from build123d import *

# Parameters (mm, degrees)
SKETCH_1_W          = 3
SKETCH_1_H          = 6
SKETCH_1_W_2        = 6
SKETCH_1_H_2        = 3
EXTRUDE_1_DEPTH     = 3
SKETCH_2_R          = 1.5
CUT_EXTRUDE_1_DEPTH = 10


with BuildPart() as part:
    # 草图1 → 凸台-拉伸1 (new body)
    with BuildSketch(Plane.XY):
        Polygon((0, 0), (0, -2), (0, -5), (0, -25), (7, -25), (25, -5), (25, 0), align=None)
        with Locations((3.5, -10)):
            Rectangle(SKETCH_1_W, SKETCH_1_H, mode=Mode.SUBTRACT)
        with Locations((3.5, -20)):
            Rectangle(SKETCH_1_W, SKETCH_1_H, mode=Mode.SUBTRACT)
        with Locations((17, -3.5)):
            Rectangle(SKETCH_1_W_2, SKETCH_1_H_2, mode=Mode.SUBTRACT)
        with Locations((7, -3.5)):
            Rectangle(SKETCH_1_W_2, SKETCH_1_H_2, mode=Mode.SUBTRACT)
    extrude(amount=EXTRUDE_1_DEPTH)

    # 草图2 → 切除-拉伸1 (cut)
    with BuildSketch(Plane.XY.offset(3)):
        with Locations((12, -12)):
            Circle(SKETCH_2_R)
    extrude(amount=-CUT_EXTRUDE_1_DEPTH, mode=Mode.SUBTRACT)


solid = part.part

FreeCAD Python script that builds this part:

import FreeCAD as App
import Part
import Sketcher

V = App.Vector

doc = App.newDocument("Part")
body = doc.addObject("PartDesign::Body", "Body")

# Sketch on XY plane
sketch1 = body.newObject("Sketcher::SketchObject", "Sketch")
sketch1.AttachmentSupport = (doc.getObject("XY_Plane"), [""])
sketch1.MapMode = "FlatFace"
sketch1.addGeometry(Part.LineSegment(V(0, 0, 0), V(0, -25, 0)), False)
sketch1.addGeometry(Part.LineSegment(V(0, -25, 0), V(7, -25, 0)), False)
sketch1.addGeometry(Part.LineSegment(V(7, -25, 0), V(25, -5, 0)), False)
sketch1.addGeometry(Part.LineSegment(V(25, -5, 0), V(25, 0, 0)), False)
sketch1.addGeometry(Part.LineSegment(V(25, 0, 0), V(0, 0, 0)), False)
sketch1.addGeometry(Part.LineSegment(V(5, -23, 0), V(2, -23, 0)), False)
sketch1.addGeometry(Part.LineSegment(V(2, -23, 0), V(2, -17, 0)), False)
sketch1.addGeometry(Part.LineSegment(V(2, -17, 0), V(5, -17, 0)), False)
sketch1.addGeometry(Part.LineSegment(V(5, -17, 0), V(5, -23, 0)), False)
sketch1.addGeometry(Part.LineSegment(V(5, -13, 0), V(2, -13, 0)), False)
sketch1.addGeometry(Part.LineSegment(V(2, -13, 0), V(2, -7, 0)), False)
sketch1.addGeometry(Part.LineSegment(V(2, -7, 0), V(5, -7, 0)), False)
sketch1.addGeometry(Part.LineSegment(V(5, -7, 0), V(5, -13, 0)), False)
sketch1.addGeometry(Part.LineSegment(V(10, -5, 0), V(4, -5, 0)), False)
sketch1.addGeometry(Part.LineSegment(V(4, -5, 0), V(4, -2, 0)), False)
sketch1.addGeometry(Part.LineSegment(V(4, -2, 0), V(10, -2, 0)), False)
sketch1.addGeometry(Part.LineSegment(V(10, -2, 0), V(10, -5, 0)), False)
sketch1.addGeometry(Part.LineSegment(V(20, -5, 0), V(14, -5, 0)), False)
sketch1.addGeometry(Part.LineSegment(V(14, -5, 0), V(14, -2, 0)), False)
sketch1.addGeometry(Part.LineSegment(V(14, -2, 0), V(20, -2, 0)), False)
sketch1.addGeometry(Part.LineSegment(V(20, -2, 0), V(20, -5, 0)), False)
sketch1.addConstraint(Sketcher.Constraint("Coincident", 0, 2, 1, 1))
sketch1.addConstraint(Sketcher.Constraint("Coincident", 1, 2, 2, 1))
sketch1.addConstraint(Sketcher.Constraint("Coincident", 2, 2, 3, 1))
sketch1.addConstraint(Sketcher.Constraint("Coincident", 3, 2, 4, 1))
sketch1.addConstraint(Sketcher.Constraint("Coincident", 4, 2, 0, 1))
sketch1.addConstraint(Sketcher.Constraint("Coincident", 5, 2, 6, 1))
sketch1.addConstraint(Sketcher.Constraint("Coincident", 6, 2, 7, 1))
sketch1.addConstraint(Sketcher.Constraint("Coincident", 7, 2, 8, 1))
sketch1.addConstraint(Sketcher.Constraint("Coincident", 8, 2, 5, 1))
sketch1.addConstraint(Sketcher.Constraint("Coincident", 9, 2, 10, 1))
sketch1.addConstraint(Sketcher.Constraint("Coincident", 10, 2, 11, 1))
sketch1.addConstraint(Sketcher.Constraint("Coincident", 11, 2, 12, 1))
sketch1.addConstraint(Sketcher.Constraint("Coincident", 12, 2, 9, 1))
sketch1.addConstraint(Sketcher.Constraint("Coincident", 13, 2, 14, 1))
sketch1.addConstraint(Sketcher.Constraint("Coincident", 14, 2, 15, 1))
sketch1.addConstraint(Sketcher.Constraint("Coincident", 15, 2, 16, 1))
sketch1.addConstraint(Sketcher.Constraint("Coincident", 16, 2, 13, 1))
sketch1.addConstraint(Sketcher.Constraint("Coincident", 17, 2, 18, 1))
sketch1.addConstraint(Sketcher.Constraint("Coincident", 18, 2, 19, 1))
sketch1.addConstraint(Sketcher.Constraint("Coincident", 19, 2, 20, 1))
sketch1.addConstraint(Sketcher.Constraint("Coincident", 20, 2, 17, 1))
sketch1.addConstraint(Sketcher.Constraint("Vertical", 0))
sketch1.addConstraint(Sketcher.Constraint("Horizontal", 1))
sketch1.addConstraint(Sketcher.Constraint("Vertical", 3))
sketch1.addConstraint(Sketcher.Constraint("Horizontal", 4))
sketch1.addConstraint(Sketcher.Constraint("Horizontal", 5))
sketch1.addConstraint(Sketcher.Constraint("Vertical", 6))
sketch1.addConstraint(Sketcher.Constraint("Horizontal", 7))
sketch1.addConstraint(Sketcher.Constraint("Vertical", 8))
sketch1.addConstraint(Sketcher.Constraint("Horizontal", 9))
sketch1.addConstraint(Sketcher.Constraint("Vertical", 10))
sketch1.addConstraint(Sketcher.Constraint("Horizontal", 11))
sketch1.addConstraint(Sketcher.Constraint("Vertical", 12))
sketch1.addConstraint(Sketcher.Constraint("Horizontal", 13))
sketch1.addConstraint(Sketcher.Constraint("Vertical", 14))
sketch1.addConstraint(Sketcher.Constraint("Horizontal", 15))
sketch1.addConstraint(Sketcher.Constraint("Vertical", 16))
sketch1.addConstraint(Sketcher.Constraint("Horizontal", 17))
sketch1.addConstraint(Sketcher.Constraint("Vertical", 18))
sketch1.addConstraint(Sketcher.Constraint("Horizontal", 19))
sketch1.addConstraint(Sketcher.Constraint("Vertical", 20))
sketch1.addConstraint(Sketcher.Constraint("Coincident", 4, 2, -1, 1))
sketch1.addConstraint(Sketcher.Constraint("Horizontal", 2, 2, 13, 2))
sketch1.addConstraint(Sketcher.Constraint("Horizontal", 16, 2, 17, 2))
sketch1.addConstraint(Sketcher.Constraint("Horizontal", 15, 2, 18, 2))
sketch1.addConstraint(Sketcher.Constraint("Vertical", 6, 2, 9, 2))
sketch1.addConstraint(Sketcher.Constraint("Vertical", 8, 2, 11, 2))
sketch1.addConstraint(Sketcher.Constraint("Equal", 15, 17))
sketch1.addConstraint(Sketcher.Constraint("Equal", 4, 0))
sketch1.addConstraint(Sketcher.Constraint("Equal", 19, 6))
sketch1.addConstraint(Sketcher.Constraint("Equal", 8, 10))
sketch1.addConstraint(Sketcher.Constraint("Equal", 11, 14))
sketch1.addConstraint(Sketcher.Constraint("DistanceX", 1, 1, 1, 2, 7.0))
sketch1.addConstraint(Sketcher.Constraint("DistanceX", 4, 2, 4, 1, 25.0))
sketch1.addConstraint(Sketcher.Constraint("DistanceX", 5, 2, 5, 1, 3.0))
sketch1.addConstraint(Sketcher.Constraint("DistanceX", 13, 2, 13, 1, 6.0))
sketch1.addConstraint(Sketcher.Constraint("DistanceY", 3, 1, 3, 2, 5.0))
sketch1.addConstraint(Sketcher.Constraint("DistanceX", -1, 1, 5, 2, 2.0))
sketch1.addConstraint(Sketcher.Constraint("DistanceY", 5, 2, -1, 1, 23.0))
sketch1.addConstraint(Sketcher.Constraint("DistanceY", 9, 2, -1, 1, 13.0))
sketch1.addConstraint(Sketcher.Constraint("DistanceX", -1, 1, 13, 2, 4.0))
sketch1.addConstraint(Sketcher.Constraint("DistanceX", -1, 1, 17, 2, 14.0))
pad1 = body.newObject("PartDesign::Pad", "Pad")
pad1.Profile = sketch1
pad1.Length = 3

# Sketch on XY plane
sketch2 = body.newObject("Sketcher::SketchObject", "Sketch001")
sketch2.AttachmentSupport = (doc.getObject("XY_Plane"), [""])
sketch2.MapMode = "FlatFace"
sketch2.AttachmentOffset = App.Placement(V(0, 0, 3), App.Rotation())
sketch2.addGeometry(Part.Circle(V(12, -12, 0), V(0, 0, 1), 1.5), False)
sketch2.addConstraint(Sketcher.Constraint("Diameter", 0, 3.0))
sketch2.addConstraint(Sketcher.Constraint("DistanceX", -1, 1, 0, 3, 12.0))
sketch2.addConstraint(Sketcher.Constraint("DistanceY", 0, 3, -1, 1, 12.0))
pocket1 = body.newObject("PartDesign::Pocket", "Pocket")
pocket1.Profile = sketch2
pocket1.Length = 10

doc.recompute()
